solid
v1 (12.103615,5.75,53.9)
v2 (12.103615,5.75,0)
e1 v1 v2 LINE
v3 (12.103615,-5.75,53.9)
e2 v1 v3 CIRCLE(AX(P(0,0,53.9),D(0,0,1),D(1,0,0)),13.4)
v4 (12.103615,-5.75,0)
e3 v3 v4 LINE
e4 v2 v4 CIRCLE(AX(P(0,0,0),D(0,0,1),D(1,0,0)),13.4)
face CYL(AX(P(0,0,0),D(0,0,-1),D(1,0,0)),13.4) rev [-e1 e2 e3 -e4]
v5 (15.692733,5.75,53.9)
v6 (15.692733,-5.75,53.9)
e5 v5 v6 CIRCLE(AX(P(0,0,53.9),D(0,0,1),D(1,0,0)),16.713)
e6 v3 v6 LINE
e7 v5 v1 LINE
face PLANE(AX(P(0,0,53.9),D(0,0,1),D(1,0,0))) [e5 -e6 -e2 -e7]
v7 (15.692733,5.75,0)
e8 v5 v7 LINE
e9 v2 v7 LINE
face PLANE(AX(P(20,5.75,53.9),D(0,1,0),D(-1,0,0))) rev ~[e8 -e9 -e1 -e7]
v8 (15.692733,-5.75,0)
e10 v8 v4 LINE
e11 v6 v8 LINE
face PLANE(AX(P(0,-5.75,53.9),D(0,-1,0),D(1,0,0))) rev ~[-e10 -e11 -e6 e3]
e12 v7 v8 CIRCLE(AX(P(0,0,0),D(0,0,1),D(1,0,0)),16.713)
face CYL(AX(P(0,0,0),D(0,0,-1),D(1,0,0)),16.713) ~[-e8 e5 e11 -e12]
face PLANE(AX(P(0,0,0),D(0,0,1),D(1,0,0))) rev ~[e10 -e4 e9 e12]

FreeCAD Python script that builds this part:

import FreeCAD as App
import Part
import Sketcher


def add_polygon(sketch, points):
    """Adds a closed chain of lines whose ends are joined by coincident constraints."""
    first, n = sketch.GeometryCount, len(points)
    for a, b in zip(points, points[1:] + points[:1]):
        sketch.addGeometry(Part.LineSegment(App.Vector(*a, 0), App.Vector(*b, 0)), False)
    for i in range(n):
        sketch.addConstraint(Sketcher.Constraint("Coincident", first + i, 2, first + (i + 1) % n, 1))

doc = App.newDocument("Part")
body = doc.addObject("PartDesign::Body", "Body")

sketch1 = doc.addObject("Sketcher::SketchObject", "Sketch")
body.addObject(sketch1)
sketch1.AttachmentSupport = (doc.XY_Plane, [""])
sketch1.MapMode = "FlatFace"
sketch1.addGeometry([
    Part.Circle(App.Vector(0, 0, 0), App.Vector(0, 0, 1), 17),
    Part.Circle(App.Vector(0, 0, 0), App.Vector(0, 0, 1), 13),
], False)
sketch1.addConstraint([
    Sketcher.Constraint("Coincident", 0, 3, -1, 1),
    Sketcher.Constraint("Coincident", 1, 3, -1, 1),
    Sketcher.Constraint("Diameter", 1, 26.8),
    Sketcher.Constraint("Diameter", 0, 33.426),
])
pad1 = doc.addObject("PartDesign::Pad", "Pad")
body.addObject(pad1)
pad1.Profile = sketch1
pad1.Length = 53.9

sketch2 = doc.addObject("Sketcher::SketchObject", "Sketch001")
body.addObject(sketch2)
sketch2.AttachmentSupport = (doc.XY_Plane, [""])
sketch2.MapMode = "FlatFace"
sketch2.AttachmentOffset = App.Placement(App.Vector(0, 0, 53.9), App.Rotation())
add_polygon(sketch2, [(0, 6), (0, -6), (20, -6), (20, 6)])
sketch2.addConstraint([
    Sketcher.Constraint("Vertical", 0),
    Sketcher.Constraint("Horizontal", 1),
    Sketcher.Constraint("Vertical", 2),
    Sketcher.Constraint("Horizontal", 3),
    Sketcher.Constraint("Symmetric", 0, 2, 3, 2, -1, 1),
    Sketcher.Constraint("DistanceX", 1, 1, 1, 2, 20.0),
    Sketcher.Constraint("DistanceY", 0, 2, 0, 1, 11.5),
])
pocket1 = doc.addObject("PartDesign::Pocket", "Pocket")
body.addObject(pocket1)
pocket1.Profile = sketch2
pocket1.Length = 53.9

doc.recompute()
